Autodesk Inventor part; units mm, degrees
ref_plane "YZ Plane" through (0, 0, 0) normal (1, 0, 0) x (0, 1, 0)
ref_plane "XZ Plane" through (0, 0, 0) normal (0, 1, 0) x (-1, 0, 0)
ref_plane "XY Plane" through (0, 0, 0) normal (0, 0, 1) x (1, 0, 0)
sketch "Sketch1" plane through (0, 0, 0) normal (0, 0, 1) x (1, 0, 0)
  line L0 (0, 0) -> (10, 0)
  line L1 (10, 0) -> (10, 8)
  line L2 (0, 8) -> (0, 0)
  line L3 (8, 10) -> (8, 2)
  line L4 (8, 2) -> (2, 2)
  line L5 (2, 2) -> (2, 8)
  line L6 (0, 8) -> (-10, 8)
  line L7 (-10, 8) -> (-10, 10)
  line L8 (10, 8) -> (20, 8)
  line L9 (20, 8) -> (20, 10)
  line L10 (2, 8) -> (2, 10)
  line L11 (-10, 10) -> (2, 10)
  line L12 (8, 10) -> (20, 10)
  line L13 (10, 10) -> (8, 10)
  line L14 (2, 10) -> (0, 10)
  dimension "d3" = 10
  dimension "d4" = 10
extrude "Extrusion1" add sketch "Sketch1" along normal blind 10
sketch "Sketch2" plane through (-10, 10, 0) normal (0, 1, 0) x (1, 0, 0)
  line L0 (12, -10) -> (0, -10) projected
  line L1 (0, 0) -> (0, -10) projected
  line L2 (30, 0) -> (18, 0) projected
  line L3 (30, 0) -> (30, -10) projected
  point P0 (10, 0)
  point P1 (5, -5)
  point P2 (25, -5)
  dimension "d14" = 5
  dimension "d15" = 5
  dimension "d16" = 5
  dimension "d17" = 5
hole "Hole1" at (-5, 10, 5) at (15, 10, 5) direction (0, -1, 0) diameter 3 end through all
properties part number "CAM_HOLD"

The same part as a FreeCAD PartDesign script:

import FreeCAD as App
import Part
import Sketcher
from FreeCAD import Vector

doc = App.newDocument("Part")
body = doc.addObject("PartDesign::Body", "Body")

sketch1 = body.newObject("Sketcher::SketchObject", "Sketch")
sketch1.AttachmentSupport = (doc.getObject("XY_Plane"), [""])
sketch1.MapMode = "FlatFace"
sketch1.addGeometry([
    Part.LineSegment(Vector(0, 8, 0), Vector(0, 0, 0)),
    Part.LineSegment(Vector(0, 0, 0), Vector(10, 0, 0)),
    Part.LineSegment(Vector(10, 0, 0), Vector(10, 8, 0)),
    Part.LineSegment(Vector(10, 8, 0), Vector(20, 8, 0)),
    Part.LineSegment(Vector(20, 8, 0), Vector(20, 10, 0)),
    Part.LineSegment(Vector(20, 10, 0), Vector(8, 10, 0)),
    Part.LineSegment(Vector(8, 10, 0), Vector(8, 2, 0)),
    Part.LineSegment(Vector(8, 2, 0), Vector(2, 2, 0)),
    Part.LineSegment(Vector(2, 2, 0), Vector(2, 10, 0)),
    Part.LineSegment(Vector(2, 10, 0), Vector(-10, 10, 0)),
    Part.LineSegment(Vector(-10, 10, 0), Vector(-10, 8, 0)),
    Part.LineSegment(Vector(-10, 8, 0), Vector(0, 8, 0)),
], False)
sketch1.addConstraint([
    Sketcher.Constraint("Coincident", 0, 2, 1, 1),
    Sketcher.Constraint("Coincident", 1, 2, 2, 1),
    Sketcher.Constraint("Coincident", 2, 2, 3, 1),
    Sketcher.Constraint("Coincident", 3, 2, 4, 1),
    Sketcher.Constraint("Coincident", 4, 2, 5, 1),
    Sketcher.Constraint("Coincident", 5, 2, 6, 1),
    Sketcher.Constraint("Coincident", 6, 2, 7, 1),
    Sketcher.Constraint("Coincident", 7, 2, 8, 1),
    Sketcher.Constraint("Coincident", 8, 2, 9, 1),
    Sketcher.Constraint("Coincident", 9, 2, 10, 1),
    Sketcher.Constraint("Coincident", 10, 2, 11, 1),
    Sketcher.Constraint("Coincident", 11, 2, 0, 1),
    Sketcher.Constraint("Vertical", 0),
    Sketcher.Constraint("Horizontal", 1),
    Sketcher.Constraint("Vertical", 2),
    Sketcher.Constraint("Horizontal", 3),
    Sketcher.Constraint("Vertical", 4),
    Sketcher.Constraint("Horizontal", 5),
    Sketcher.Constraint("Vertical", 6),
    Sketcher.Constraint("Horizontal", 7),
    Sketcher.Constraint("Vertical", 8),
    Sketcher.Constraint("Horizontal", 9),
    Sketcher.Constraint("Vertical", 10),
    Sketcher.Constraint("Horizontal", 11),
    Sketcher.Constraint("Coincident", 0, 2, -1, 1),
    Sketcher.Constraint("Symmetric", 2, 2, 10, 2, -2),
    Sketcher.Constraint("Horizontal", 5, 2, 8, 2),
    Sketcher.Constraint("Equal", 1, 3),
    Sketcher.Constraint("Equal", 5, 9),
    Sketcher.Constraint("Equal", 2, 6),
    Sketcher.Constraint("DistanceX", 1, 1, 1, 2, 10.0),
    Sketcher.Constraint("DistanceY", -1, 1, 4, 2, 10.0),
    Sketcher.Constraint("DistanceX", 5, 2, 5, 1, 12.0),
    Sketcher.Constraint("DistanceY", 0, 2, 0, 1, 8.0),
])
pad1 = body.newObject("PartDesign::Pad", "Pad")
pad1.Profile = sketch1
pad1.Length = 10

sketch2 = body.newObject("Sketcher::SketchObject", "Sketch001")
sketch2.AttachmentSupport = (doc.getObject("XZ_Plane"), [""])
sketch2.MapMode = "FlatFace"
sketch2.AttachmentOffset = App.Placement(Vector(0, 0, -10), App.Rotation())
sketch2.addGeometry([
    Part.Circle(Vector(-5, 5, 0), Vector(0, 0, 1), 1.5),
    Part.Circle(Vector(15, 5, 0), Vector(0, 0, 1), 1.5),
], False)
sketch2.addConstraint([
    Sketcher.Constraint("Equal", 0, 1),
    Sketcher.Constraint("Horizontal", 0, 3, 1, 3),
    Sketcher.Constraint("Diameter", 0, 3.0),
    Sketcher.Constraint("DistanceX", 0, 3, -1, 1, 5.0),
    Sketcher.Constraint("DistanceY", -1, 1, 0, 3, 5.0),
    Sketcher.Constraint("DistanceX", -1, 1, 1, 3, 15.0),
])
doc.recompute()
hole = body.newObject("PartDesign::Hole", "Hole")
hole.Profile = sketch2
hole.ThreadType = "None"
hole.Diameter = 3
hole.DepthType = "ThroughAll"
hole.Reversed = True

doc.recompute()
